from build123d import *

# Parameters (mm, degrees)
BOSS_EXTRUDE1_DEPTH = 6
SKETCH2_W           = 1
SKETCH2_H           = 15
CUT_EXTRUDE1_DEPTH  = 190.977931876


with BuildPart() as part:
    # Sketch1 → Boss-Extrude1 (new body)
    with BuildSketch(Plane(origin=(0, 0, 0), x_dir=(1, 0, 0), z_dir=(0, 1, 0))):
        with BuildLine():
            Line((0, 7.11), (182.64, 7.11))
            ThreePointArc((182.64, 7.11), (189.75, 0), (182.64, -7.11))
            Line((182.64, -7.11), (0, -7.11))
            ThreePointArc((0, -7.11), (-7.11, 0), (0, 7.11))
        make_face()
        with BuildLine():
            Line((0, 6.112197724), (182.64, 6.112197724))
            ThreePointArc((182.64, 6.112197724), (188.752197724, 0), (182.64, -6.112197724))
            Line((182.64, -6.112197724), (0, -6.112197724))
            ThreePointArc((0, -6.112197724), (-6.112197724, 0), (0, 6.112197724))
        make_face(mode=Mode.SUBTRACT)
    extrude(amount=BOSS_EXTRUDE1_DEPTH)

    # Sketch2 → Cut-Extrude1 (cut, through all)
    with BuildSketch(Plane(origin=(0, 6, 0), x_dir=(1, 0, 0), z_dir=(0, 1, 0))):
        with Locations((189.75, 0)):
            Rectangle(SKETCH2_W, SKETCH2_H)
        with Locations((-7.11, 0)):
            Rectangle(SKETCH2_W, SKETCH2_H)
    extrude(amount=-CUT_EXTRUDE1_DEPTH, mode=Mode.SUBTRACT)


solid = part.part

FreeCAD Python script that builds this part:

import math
import FreeCAD as App
import Part
import Sketcher

V = App.Vector
Q = App.Units.Quantity


def add_polygon(sketch, points):
    """Adds a closed chain of lines whose ends are joined by coincident constraints."""
    first, n = sketch.GeometryCount, len(points)
    for a, b in zip(points, points[1:] + points[:1]):
        sketch.addGeometry(Part.LineSegment(App.Vector(*a, 0), App.Vector(*b, 0)), False)
    for i in range(n):
        sketch.addConstraint(Sketcher.Constraint("Coincident", first + i, 2, first + (i + 1) % n, 1))

doc = App.newDocument("Part")
params = doc.addObject("Spreadsheet::Sheet", "Params")
for row, (alias, value) in enumerate([
    ("sketch1_radius", "7.11 mm"),
    ("sketch1_width", "182.64 mm"),
    ("pad1_length", "6 mm"),
    ("sketch2_width", "1 mm"),
    ("sketch2_height", "15 mm"),
], start=1):
    params.set(f"A{row}", alias)
    params.set(f"B{row}", "=" + value)
    params.setAlias(f"B{row}", alias)

body = doc.addObject("PartDesign::Body", "Body")

sketch1 = body.newObject("Sketcher::SketchObject", "Sketch")
sketch1.AttachmentSupport = (doc.getObject("XZ_Plane"), [""])
sketch1.MapMode = "FlatFace"
sketch1.addGeometry(Part.LineSegment(V(183, -7, 0), V(0, -7, 0)), False)
sketch1.addGeometry(Part.ArcOfCircle(Part.Circle(V(0, 0, 0), V(0, 0, 1), 7), math.radians(90), math.radians(270)), False)
sketch1.addGeometry(Part.LineSegment(V(0, 7, 0), V(183, 7, 0)), False)
sketch1.addGeometry(Part.ArcOfCircle(Part.Circle(V(183, 0, 0), V(0, 0, 1), 7), math.radians(-90), math.radians(90)), False)
sketch1.addGeometry(Part.LineSegment(V(0, -6, 0), V(183, -6, 0)), False)
sketch1.addGeometry(Part.ArcOfCircle(Part.Circle(V(183, 0, 0), V(0, 0, 1), 6), math.radians(-90), math.radians(90)), False)
sketch1.addGeometry(Part.LineSegment(V(183, 6, 0), V(0, 6, 0)), False)
sketch1.addGeometry(Part.ArcOfCircle(Part.Circle(V(0, 0, 0), V(0, 0, 1), 6), math.radians(90), math.radians(270)), False)
sketch1.addConstraint(Sketcher.Constraint("Tangent", 0, 2, 1, 2))
sketch1.addConstraint(Sketcher.Constraint("Tangent", 1, 1, 2, 1))
sketch1.addConstraint(Sketcher.Constraint("Tangent", 2, 2, 3, 2))
sketch1.addConstraint(Sketcher.Constraint("Tangent", 3, 1, 0, 1))
sketch1.addConstraint(Sketcher.Constraint("Tangent", 4, 2, 5, 1))
sketch1.addConstraint(Sketcher.Constraint("Tangent", 5, 2, 6, 1))
sketch1.addConstraint(Sketcher.Constraint("Tangent", 6, 2, 7, 1))
sketch1.addConstraint(Sketcher.Constraint("Tangent", 7, 2, 4, 1))
sketch1.addConstraint(Sketcher.Constraint("Horizontal", 0))
sketch1.addConstraint(Sketcher.Constraint("Horizontal", 2))
sketch1.addConstraint(Sketcher.Constraint("Horizontal", 4))
sketch1.addConstraint(Sketcher.Constraint("Horizontal", 6))
sketch1.addConstraint(Sketcher.Constraint("Coincident", 1, 3, -1, 1))
sketch1.addConstraint(Sketcher.Constraint("Coincident", 7, 3, -1, 1))
sketch1.addConstraint(Sketcher.Constraint("Vertical", 5, 3, 2, 2))
sketch1.addConstraint(Sketcher.Constraint("Radius", 1, Q("7.11 mm")))
sketch1.addConstraint(Sketcher.Constraint("DistanceX", 0, 2, 0, 1, Q("182.64 mm")))
sketch1.addConstraint(Sketcher.Constraint("Radius", 5, Q("6.112198 mm")))
sketch1.setExpression("Constraints[15]", "Params.sketch1_radius")
sketch1.setExpression("Constraints[16]", "Params.sketch1_width")
pad1 = body.newObject("PartDesign::Pad", "Pad")
pad1.Profile = sketch1
pad1.setExpression("Length", "Params.pad1_length")
pad1.Reversed = True

sketch2 = body.newObject("Sketcher::SketchObject", "Sketch001")
sketch2.AttachmentSupport = (doc.getObject("XZ_Plane"), [""])
sketch2.MapMode = "FlatFace"
sketch2.AttachmentOffset = App.Placement(V(0, 0, -6), App.Rotation())
add_polygon(sketch2, [(189.2, -7.5), (189.2, 7.5), (190.2, 7.5), (190.2, -7.5)])
add_polygon(sketch2, [(-7.6, -7.5), (-7.6, 7.5), (-6.6, 7.5), (-6.6, -7.5)])
sketch2.addConstraint(Sketcher.Constraint("Vertical", 0))
sketch2.addConstraint(Sketcher.Constraint("Horizontal", 1))
sketch2.addConstraint(Sketcher.Constraint("Vertical", 2))
sketch2.addConstraint(Sketcher.Constraint("Horizontal", 3))
sketch2.addConstraint(Sketcher.Constraint("Vertical", 4))
sketch2.addConstraint(Sketcher.Constraint("Horizontal", 5))
sketch2.addConstraint(Sketcher.Constraint("Vertical", 6))
sketch2.addConstraint(Sketcher.Constraint("Horizontal", 7))
sketch2.addConstraint(Sketcher.Constraint("Horizontal", 1, 2, 4, 2))
sketch2.addConstraint(Sketcher.Constraint("Horizontal", 3, 2, 6, 2))
sketch2.addConstraint(Sketcher.Constraint("Equal", 3, 5))
sketch2.addConstraint(Sketcher.Constraint("DistanceX", 1, 1, 1, 2, Q("1 mm")))
sketch2.addConstraint(Sketcher.Constraint("DistanceY", 0, 1, 0, 2, Q("15 mm")))
sketch2.addConstraint(Sketcher.Constraint("DistanceY", -1, 1, 0, 2, Q("7.5 mm")))
sketch2.addConstraint(Sketcher.Constraint("DistanceX", -1, 1, 0, 2, Q("189.25 mm")))
sketch2.addConstraint(Sketcher.Constraint("DistanceX", 4, 2, -1, 1, Q("7.61 mm")))
sketch2.setExpression("Constraints[19]", "Params.sketch2_width")
sketch2.setExpression("Constraints[20]", "Params.sketch2_height")
pocket1 = body.newObject("PartDesign::Pocket", "Pocket")
pocket1.Profile = sketch2
pocket1.Type = "ThroughAll"
pocket1.Reversed = True

doc.recompute()
